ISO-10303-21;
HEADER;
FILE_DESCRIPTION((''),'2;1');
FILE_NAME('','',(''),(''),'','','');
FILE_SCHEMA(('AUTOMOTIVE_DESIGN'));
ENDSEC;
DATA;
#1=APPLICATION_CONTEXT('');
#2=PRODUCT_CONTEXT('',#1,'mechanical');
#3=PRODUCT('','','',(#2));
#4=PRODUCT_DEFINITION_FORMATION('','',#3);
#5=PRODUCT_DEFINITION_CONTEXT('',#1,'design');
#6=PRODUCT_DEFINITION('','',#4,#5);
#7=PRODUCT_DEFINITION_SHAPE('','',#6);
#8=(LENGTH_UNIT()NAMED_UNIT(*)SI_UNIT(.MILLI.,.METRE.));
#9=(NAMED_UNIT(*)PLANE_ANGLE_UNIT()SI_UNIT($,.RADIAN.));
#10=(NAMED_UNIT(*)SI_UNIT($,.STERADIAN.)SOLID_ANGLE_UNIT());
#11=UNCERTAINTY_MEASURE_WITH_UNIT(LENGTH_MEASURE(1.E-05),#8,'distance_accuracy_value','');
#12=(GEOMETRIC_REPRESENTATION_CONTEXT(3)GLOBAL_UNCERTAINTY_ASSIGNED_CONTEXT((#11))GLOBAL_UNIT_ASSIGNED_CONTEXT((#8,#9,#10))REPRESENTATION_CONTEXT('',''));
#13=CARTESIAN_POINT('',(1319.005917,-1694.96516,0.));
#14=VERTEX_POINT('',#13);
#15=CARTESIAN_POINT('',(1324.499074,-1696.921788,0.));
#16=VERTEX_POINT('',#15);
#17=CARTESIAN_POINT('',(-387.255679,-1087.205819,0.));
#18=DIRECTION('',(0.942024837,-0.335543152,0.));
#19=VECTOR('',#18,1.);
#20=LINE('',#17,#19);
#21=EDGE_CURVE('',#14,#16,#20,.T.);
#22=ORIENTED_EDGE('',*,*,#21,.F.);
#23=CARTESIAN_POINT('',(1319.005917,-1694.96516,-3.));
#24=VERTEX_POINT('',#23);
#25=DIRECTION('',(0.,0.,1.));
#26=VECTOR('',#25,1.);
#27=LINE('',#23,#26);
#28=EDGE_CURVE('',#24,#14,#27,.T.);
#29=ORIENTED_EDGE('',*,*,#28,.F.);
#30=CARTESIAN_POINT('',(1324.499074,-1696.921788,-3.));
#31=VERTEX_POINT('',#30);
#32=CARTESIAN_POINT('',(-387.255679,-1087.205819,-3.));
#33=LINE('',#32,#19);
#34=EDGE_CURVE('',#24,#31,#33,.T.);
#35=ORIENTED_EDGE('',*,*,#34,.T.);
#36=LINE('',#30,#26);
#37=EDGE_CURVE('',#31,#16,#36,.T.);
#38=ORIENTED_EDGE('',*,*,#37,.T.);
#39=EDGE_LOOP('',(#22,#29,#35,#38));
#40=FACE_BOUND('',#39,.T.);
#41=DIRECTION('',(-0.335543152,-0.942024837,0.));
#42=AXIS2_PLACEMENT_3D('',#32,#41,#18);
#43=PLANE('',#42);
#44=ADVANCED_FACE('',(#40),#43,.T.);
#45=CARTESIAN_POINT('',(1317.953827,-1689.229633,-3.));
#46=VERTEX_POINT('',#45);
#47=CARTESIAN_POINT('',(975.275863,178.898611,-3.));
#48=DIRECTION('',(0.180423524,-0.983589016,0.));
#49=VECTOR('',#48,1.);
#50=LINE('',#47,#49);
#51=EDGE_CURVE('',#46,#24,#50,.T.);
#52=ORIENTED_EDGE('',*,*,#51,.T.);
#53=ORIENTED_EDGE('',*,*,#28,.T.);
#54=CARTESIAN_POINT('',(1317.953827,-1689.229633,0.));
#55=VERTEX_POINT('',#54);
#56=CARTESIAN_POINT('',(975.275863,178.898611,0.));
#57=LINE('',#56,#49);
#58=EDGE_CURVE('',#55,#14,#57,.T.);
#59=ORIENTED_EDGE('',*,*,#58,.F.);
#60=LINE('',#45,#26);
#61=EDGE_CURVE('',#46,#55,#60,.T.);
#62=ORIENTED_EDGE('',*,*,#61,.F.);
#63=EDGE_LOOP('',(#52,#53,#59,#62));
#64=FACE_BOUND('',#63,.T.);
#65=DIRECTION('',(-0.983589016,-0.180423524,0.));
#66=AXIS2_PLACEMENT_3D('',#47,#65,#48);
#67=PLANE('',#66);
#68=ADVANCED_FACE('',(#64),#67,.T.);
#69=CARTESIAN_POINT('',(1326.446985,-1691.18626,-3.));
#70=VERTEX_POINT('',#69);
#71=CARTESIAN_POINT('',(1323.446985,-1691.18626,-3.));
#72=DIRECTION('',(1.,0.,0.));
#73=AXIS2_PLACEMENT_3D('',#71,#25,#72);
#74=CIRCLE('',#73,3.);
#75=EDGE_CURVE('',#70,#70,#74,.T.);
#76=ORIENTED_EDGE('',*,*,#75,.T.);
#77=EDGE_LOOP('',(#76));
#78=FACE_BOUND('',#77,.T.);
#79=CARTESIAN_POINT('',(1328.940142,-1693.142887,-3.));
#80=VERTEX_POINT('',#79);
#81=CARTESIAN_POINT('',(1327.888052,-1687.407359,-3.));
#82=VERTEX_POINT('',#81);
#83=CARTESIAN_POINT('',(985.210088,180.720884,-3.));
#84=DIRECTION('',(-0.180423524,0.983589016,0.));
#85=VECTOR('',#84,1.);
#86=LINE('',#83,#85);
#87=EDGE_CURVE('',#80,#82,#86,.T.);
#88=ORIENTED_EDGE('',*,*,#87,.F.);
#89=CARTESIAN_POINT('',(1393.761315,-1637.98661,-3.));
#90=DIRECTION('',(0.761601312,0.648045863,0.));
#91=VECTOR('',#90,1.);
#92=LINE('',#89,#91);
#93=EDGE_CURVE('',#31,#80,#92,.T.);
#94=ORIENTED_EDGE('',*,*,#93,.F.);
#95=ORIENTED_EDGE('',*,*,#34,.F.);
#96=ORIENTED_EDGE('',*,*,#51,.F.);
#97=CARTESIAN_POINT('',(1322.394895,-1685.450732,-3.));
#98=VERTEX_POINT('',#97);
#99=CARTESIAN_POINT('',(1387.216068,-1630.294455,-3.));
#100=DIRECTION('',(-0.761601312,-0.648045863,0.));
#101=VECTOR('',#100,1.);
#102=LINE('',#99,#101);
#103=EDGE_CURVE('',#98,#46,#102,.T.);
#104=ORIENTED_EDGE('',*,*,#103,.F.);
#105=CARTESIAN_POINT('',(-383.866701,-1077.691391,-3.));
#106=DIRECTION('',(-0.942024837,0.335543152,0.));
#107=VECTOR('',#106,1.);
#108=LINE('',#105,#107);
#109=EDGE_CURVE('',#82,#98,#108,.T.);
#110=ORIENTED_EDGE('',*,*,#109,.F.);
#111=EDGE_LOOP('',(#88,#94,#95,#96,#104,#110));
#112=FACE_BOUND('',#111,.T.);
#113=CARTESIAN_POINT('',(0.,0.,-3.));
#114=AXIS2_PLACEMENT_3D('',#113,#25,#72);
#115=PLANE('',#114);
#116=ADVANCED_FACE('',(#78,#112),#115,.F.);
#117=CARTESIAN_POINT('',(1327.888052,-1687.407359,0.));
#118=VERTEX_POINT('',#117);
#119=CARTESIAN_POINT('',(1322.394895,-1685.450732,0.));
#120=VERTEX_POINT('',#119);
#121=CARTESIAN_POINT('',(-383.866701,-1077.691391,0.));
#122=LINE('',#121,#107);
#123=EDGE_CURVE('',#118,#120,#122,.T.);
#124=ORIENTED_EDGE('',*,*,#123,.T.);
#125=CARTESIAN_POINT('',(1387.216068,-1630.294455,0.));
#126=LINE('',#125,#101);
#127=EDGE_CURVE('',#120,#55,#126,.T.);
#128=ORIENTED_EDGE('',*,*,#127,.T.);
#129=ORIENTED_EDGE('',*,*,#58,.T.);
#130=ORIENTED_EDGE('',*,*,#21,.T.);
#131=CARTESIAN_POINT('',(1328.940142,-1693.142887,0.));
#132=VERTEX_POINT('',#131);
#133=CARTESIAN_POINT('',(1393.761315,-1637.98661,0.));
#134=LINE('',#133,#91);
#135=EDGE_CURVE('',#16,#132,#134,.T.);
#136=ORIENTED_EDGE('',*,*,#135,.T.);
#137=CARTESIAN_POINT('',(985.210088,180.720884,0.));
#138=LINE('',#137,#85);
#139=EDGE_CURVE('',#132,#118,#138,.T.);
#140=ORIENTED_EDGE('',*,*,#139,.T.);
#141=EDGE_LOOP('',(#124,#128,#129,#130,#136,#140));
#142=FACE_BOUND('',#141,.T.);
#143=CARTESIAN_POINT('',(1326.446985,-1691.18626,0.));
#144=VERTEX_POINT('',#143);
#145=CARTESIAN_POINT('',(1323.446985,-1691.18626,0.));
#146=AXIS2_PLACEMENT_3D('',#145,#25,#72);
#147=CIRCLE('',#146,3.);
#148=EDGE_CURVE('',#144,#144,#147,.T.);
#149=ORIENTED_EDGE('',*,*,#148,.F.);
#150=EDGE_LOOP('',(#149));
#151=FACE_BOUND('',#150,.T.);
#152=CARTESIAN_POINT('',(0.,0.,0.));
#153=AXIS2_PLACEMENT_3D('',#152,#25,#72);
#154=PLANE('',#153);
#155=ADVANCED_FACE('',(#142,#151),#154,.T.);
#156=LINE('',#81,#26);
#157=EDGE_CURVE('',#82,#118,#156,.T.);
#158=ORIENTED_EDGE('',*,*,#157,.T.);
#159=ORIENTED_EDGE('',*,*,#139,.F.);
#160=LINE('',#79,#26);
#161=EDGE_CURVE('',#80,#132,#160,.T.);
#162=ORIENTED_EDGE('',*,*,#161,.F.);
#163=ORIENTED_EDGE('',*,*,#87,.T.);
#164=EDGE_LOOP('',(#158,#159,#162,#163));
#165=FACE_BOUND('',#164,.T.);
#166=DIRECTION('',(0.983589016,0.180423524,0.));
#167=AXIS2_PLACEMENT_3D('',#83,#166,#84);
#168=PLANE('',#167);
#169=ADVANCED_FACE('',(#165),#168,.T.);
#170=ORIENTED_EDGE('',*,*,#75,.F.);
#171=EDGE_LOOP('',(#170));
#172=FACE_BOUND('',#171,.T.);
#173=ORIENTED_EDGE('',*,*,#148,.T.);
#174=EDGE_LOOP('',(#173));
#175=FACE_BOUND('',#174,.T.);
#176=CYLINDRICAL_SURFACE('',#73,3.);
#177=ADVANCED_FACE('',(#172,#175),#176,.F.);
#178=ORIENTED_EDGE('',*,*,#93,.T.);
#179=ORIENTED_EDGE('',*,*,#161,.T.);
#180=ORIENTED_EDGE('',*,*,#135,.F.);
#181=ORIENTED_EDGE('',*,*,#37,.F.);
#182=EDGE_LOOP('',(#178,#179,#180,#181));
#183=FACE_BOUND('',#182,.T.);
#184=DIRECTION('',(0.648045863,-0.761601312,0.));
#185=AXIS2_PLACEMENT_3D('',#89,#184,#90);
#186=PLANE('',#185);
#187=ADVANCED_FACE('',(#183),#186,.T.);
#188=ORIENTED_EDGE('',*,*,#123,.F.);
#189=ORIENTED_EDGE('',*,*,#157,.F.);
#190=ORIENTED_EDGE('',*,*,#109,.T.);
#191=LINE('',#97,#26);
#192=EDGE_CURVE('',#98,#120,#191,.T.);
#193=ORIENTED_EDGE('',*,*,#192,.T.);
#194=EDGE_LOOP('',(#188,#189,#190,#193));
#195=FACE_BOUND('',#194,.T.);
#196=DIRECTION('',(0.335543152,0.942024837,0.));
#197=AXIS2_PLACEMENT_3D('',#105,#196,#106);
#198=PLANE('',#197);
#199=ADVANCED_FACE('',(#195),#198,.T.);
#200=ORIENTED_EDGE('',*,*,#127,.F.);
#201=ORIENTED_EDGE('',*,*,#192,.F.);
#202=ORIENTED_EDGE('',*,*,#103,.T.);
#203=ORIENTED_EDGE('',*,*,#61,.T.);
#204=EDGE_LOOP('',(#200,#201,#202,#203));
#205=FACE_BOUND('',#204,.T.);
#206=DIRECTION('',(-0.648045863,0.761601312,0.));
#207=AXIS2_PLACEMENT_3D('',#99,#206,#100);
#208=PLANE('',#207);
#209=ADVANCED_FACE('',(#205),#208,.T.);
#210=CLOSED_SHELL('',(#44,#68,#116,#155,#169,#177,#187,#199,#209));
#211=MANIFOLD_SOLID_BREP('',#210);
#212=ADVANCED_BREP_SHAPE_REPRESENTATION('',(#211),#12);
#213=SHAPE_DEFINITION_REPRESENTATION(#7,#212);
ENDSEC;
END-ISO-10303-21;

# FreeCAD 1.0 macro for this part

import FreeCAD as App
import Part
import Sketcher
from FreeCAD import Vector
Q = App.Units.Quantity


def add_polygon(sketch, points):
    """Adds a closed chain of lines whose ends are joined by coincident constraints."""
    first, n = sketch.GeometryCount, len(points)
    for a, b in zip(points, points[1:] + points[:1]):
        sketch.addGeometry(Part.LineSegment(App.Vector(*a, 0), App.Vector(*b, 0)), False)
    for i in range(n):
        sketch.addConstraint(Sketcher.Constraint("Coincident", first + i, 2, first + (i + 1) % n, 1))

doc = App.newDocument("Part")
params = doc.addObject("Spreadsheet::Sheet", "Params")
for row, (alias, value) in enumerate([
    ("sketch1_diameter", "6 mm"),
    ("pad1_length", "3 mm"),
], start=1):
    params.set(f"A{row}", alias)
    params.set(f"B{row}", "=" + value)
    params.setAlias(f"B{row}", alias)

body = doc.addObject("PartDesign::Body", "Body")

# Sketch on XY plane
sketch1 = doc.addObject("Sketcher::SketchObject", "Sketch")
body.addObject(sketch1)
sketch1.AttachmentSupport = (doc.XY_Plane, [""])
sketch1.MapMode = "FlatFace"
add_polygon(sketch1, [(1328.940142, -1693.142887), (1328.414096, -1690.275115), (1327.888052, -1687.407359), (1325.141465, -1686.429043), (1322.394895, -1685.450732), (1320.174353, -1687.340189), (1317.953827, -1689.229633), (1318.479873, -1692.097402), (1319.005917, -1694.96516), (1321.752496, -1695.943474), (1324.499074, -1696.921788), (1326.719608, -1695.032337)])  # lines 0-11
sketch1.addGeometry(Part.Circle(Vector(1323.446985, -1691.18626, 0), Vector(0, 0, 1), 3), False)  # 12
sketch1.addConstraint([
    Sketcher.Constraint("Parallel", 0, 1),
    Sketcher.Constraint("Parallel", 2, 3),
    Sketcher.Constraint("Parallel", 4, 5),
    Sketcher.Constraint("Parallel", 1, 6),
    Sketcher.Constraint("Parallel", 6, 7),
    Sketcher.Constraint("Parallel", 3, 8),
    Sketcher.Constraint("Parallel", 8, 9),
    Sketcher.Constraint("Parallel", 5, 10),
    Sketcher.Constraint("Parallel", 10, 11),
    Sketcher.Constraint("Equal", 0, 2),
    Sketcher.Constraint("Equal", 1, 3),
    Sketcher.Constraint("Equal", 2, 4),
    Sketcher.Constraint("Equal", 3, 5),
    Sketcher.Constraint("Equal", 8, 9),
    Sketcher.Constraint("Equal", 9, 10),
    Sketcher.Constraint("Equal", 10, 11),
    Sketcher.Constraint("Diameter", 12, Q("6 mm")),
    Sketcher.Constraint("Distance", 5, Q("2.915602 mm")),
    Sketcher.Constraint("DistanceY", 12, 3, 1, 2, Q("3.7789 mm")),
    Sketcher.Constraint("DistanceX", 3, 2, 0, 2, Q("6.019201 mm")),
    Sketcher.Constraint("DistanceX", 4, 2, 1, 2, Q("7.713699 mm")),
    Sketcher.Constraint("DistanceY", 5, 2, 3, 2, Q("3.7789 mm")),
    Sketcher.Constraint("DistanceY", 7, 2, 12, 3, Q("3.7789 mm")),
    Sketcher.Constraint("DistanceX", 6, 2, 9, 2, Q("6.019202 mm")),
    Sketcher.Constraint("DistanceY", 12, 3, -1, 1, Q("1691.18626 mm")),
    Sketcher.Constraint("DistanceX", -1, 1, 10, 2, Q("1326.719608 mm")),
    Sketcher.Constraint("DistanceX", 12, 3, 0, 2, Q("4.967111 mm")),
])
sketch1.setExpression("Constraints[28]", "Params.sketch1_diameter")
pad1 = doc.addObject("PartDesign::Pad", "Pad")
body.addObject(pad1)
pad1.Profile = sketch1
pad1.setExpression("Length", "Params.pad1_length")
pad1.Reversed = True

doc.recompute()
